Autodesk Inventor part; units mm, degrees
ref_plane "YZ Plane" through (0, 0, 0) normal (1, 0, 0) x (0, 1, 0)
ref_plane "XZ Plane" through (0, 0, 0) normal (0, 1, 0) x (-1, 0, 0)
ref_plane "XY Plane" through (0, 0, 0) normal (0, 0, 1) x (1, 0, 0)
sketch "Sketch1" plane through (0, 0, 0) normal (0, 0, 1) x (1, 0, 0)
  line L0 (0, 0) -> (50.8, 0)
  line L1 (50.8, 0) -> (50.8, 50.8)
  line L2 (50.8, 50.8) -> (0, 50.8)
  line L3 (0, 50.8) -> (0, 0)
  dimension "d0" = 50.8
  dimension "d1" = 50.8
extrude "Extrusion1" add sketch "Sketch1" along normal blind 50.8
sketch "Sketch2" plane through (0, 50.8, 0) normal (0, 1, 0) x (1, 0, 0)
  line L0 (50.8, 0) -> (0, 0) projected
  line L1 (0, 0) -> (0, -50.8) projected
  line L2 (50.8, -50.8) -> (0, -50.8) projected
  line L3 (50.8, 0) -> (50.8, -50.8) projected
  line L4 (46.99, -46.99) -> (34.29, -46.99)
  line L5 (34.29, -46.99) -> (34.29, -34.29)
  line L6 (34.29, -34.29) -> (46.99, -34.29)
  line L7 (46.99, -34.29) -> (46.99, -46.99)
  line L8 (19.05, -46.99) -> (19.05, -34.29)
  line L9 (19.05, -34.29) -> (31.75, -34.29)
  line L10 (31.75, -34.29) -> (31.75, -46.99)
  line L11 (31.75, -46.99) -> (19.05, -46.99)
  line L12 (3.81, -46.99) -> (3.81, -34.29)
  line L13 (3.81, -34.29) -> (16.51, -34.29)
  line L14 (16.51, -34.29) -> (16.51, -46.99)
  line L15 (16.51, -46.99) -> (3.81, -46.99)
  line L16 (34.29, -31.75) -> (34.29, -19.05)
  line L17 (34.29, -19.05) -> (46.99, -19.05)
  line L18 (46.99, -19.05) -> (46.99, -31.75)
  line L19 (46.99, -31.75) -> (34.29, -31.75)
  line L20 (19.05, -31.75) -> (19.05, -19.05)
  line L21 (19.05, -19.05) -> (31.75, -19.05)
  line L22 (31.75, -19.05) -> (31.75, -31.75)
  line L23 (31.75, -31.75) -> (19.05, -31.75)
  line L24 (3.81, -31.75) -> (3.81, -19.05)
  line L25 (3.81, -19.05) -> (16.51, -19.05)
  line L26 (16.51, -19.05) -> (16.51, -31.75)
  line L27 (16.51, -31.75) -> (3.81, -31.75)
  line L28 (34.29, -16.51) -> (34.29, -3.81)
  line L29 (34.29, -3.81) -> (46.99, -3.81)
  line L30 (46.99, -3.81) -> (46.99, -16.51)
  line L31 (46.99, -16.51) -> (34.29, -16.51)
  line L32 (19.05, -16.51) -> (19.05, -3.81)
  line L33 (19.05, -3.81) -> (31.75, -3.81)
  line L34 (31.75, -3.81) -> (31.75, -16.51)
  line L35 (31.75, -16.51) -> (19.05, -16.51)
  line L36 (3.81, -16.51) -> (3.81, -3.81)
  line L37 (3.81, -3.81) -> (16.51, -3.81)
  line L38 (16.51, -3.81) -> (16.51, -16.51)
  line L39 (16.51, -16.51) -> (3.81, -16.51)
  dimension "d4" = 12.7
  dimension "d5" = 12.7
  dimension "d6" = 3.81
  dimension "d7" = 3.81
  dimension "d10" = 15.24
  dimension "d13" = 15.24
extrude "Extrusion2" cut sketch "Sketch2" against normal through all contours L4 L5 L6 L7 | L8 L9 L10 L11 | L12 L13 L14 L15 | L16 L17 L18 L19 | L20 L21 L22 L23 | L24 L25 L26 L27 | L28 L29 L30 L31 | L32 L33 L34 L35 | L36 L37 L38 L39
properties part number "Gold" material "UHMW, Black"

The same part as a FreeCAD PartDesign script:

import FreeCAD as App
import Part
import Sketcher

V = App.Vector
Q = App.Units.Quantity


def add_polygon(sketch, points):
    """Adds a closed chain of lines whose ends are joined by coincident constraints."""
    first, n = sketch.GeometryCount, len(points)
    for a, b in zip(points, points[1:] + points[:1]):
        sketch.addGeometry(Part.LineSegment(App.Vector(*a, 0), App.Vector(*b, 0)), False)
    for i in range(n):
        sketch.addConstraint(Sketcher.Constraint("Coincident", first + i, 2, first + (i + 1) % n, 1))

doc = App.newDocument("Part")
params = doc.addObject("Spreadsheet::Sheet", "Params")
for row, (alias, value) in enumerate([
    ("sketch1_width", "2 in"),
    ("pad1_length", "2 in"),
    ("sketch2_width", "0.5 in"),
], start=1):
    params.set(f"A{row}", alias)
    params.set(f"B{row}", "=" + value)
    params.setAlias(f"B{row}", alias)

body = doc.addObject("PartDesign::Body", "Body")

sketch1 = body.newObject("Sketcher::SketchObject", "Sketch")
sketch1.AttachmentSupport = (doc.getObject("XY_Plane"), [""])
sketch1.MapMode = "FlatFace"
add_polygon(sketch1, [(0, 51), (0, 0), (51, 0), (51, 51)])
sketch1.addConstraint([
    Sketcher.Constraint("Vertical", 0),
    Sketcher.Constraint("Horizontal", 1),
    Sketcher.Constraint("Vertical", 2),
    Sketcher.Constraint("Horizontal", 3),
    Sketcher.Constraint("Coincident", 0, 2, -1, 1),
    Sketcher.Constraint("Equal", 3, 0),
    Sketcher.Constraint("DistanceX", 1, 1, 1, 2, Q("2 in")),
])
sketch1.setExpression("Constraints[10]", "Params.sketch1_width")
pad1 = body.newObject("PartDesign::Pad", "Pad")
pad1.Profile = sketch1
pad1.setExpression("Length", "Params.pad1_length")

sketch2 = body.newObject("Sketcher::SketchObject", "Sketch001")
sketch2.AttachmentSupport = (doc.getObject("XZ_Plane"), [""])
sketch2.MapMode = "FlatFace"
sketch2.AttachmentOffset = App.Placement(V(0, 0, -2 * 25.4), App.Rotation())
add_polygon(sketch2, [(34, 47), (47, 47), (47, 34), (34, 34)])
add_polygon(sketch2, [(19, 34), (19, 47), (32, 47), (32, 34)])
add_polygon(sketch2, [(4, 34), (4, 47), (17, 47), (17, 34)])
add_polygon(sketch2, [(34, 19), (34, 32), (47, 32), (47, 19)])
add_polygon(sketch2, [(19, 19), (19, 32), (32, 32), (32, 19)])
add_polygon(sketch2, [(4, 19), (4, 32), (17, 32), (17, 19)])
add_polygon(sketch2, [(34, 4), (34, 17), (47, 17), (47, 4)])
add_polygon(sketch2, [(19, 4), (19, 17), (32, 17), (32, 4)])
add_polygon(sketch2, [(4, 4), (4, 17), (17, 17), (17, 4)])
sketch2.addConstraint([
    Sketcher.Constraint("Horizontal", 0),
    Sketcher.Constraint("Vertical", 1),
    Sketcher.Constraint("Horizontal", 2),
    Sketcher.Constraint("Vertical", 3),
    Sketcher.Constraint("Vertical", 4),
    Sketcher.Constraint("Horizontal", 5),
    Sketcher.Constraint("Vertical", 6),
    Sketcher.Constraint("Horizontal", 7),
    Sketcher.Constraint("Vertical", 8),
    Sketcher.Constraint("Horizontal", 9),
    Sketcher.Constraint("Vertical", 10),
    Sketcher.Constraint("Horizontal", 11),
    Sketcher.Constraint("Vertical", 12),
    Sketcher.Constraint("Horizontal", 13),
    Sketcher.Constraint("Vertical", 14),
    Sketcher.Constraint("Horizontal", 15),
    Sketcher.Constraint("Vertical", 16),
    Sketcher.Constraint("Horizontal", 17),
    Sketcher.Constraint("Vertical", 18),
    Sketcher.Constraint("Horizontal", 19),
    Sketcher.Constraint("Vertical", 20),
    Sketcher.Constraint("Horizontal", 21),
    Sketcher.Constraint("Vertical", 22),
    Sketcher.Constraint("Horizontal", 23),
    Sketcher.Constraint("Vertical", 24),
    Sketcher.Constraint("Horizontal", 25),
    Sketcher.Constraint("Vertical", 26),
    Sketcher.Constraint("Horizontal", 27),
    Sketcher.Constraint("Vertical", 28),
    Sketcher.Constraint("Horizontal", 29),
    Sketcher.Constraint("Vertical", 30),
    Sketcher.Constraint("Horizontal", 31),
    Sketcher.Constraint("Vertical", 32),
    Sketcher.Constraint("Horizontal", 33),
    Sketcher.Constraint("Vertical", 34),
    Sketcher.Constraint("Horizontal", 35),
    Sketcher.Constraint("Horizontal", 3, 2, 4, 2),
    Sketcher.Constraint("Horizontal", 2, 2, 6, 2),
    Sketcher.Constraint("Horizontal", 5, 2, 8, 2),
    Sketcher.Constraint("Horizontal", 7, 2, 10, 2),
    Sketcher.Constraint("Horizontal", 13, 2, 16, 2),
    Sketcher.Constraint("Horizontal", 15, 2, 18, 2),
    Sketcher.Constraint("Horizontal", 17, 2, 20, 2),
    Sketcher.Constraint("Horizontal", 19, 2, 22, 2),
    Sketcher.Constraint("Horizontal", 25, 2, 28, 2),
    Sketcher.Constraint("Horizontal", 27, 2, 30, 2),
    Sketcher.Constraint("Horizontal", 29, 2, 32, 2),
    Sketcher.Constraint("Horizontal", 31, 2, 34, 2),
    Sketcher.Constraint("Vertical", 3, 2, 12, 2),
    Sketcher.Constraint("Vertical", 1, 2, 13, 2),
    Sketcher.Constraint("Vertical", 7, 2, 16, 2),
    Sketcher.Constraint("Vertical", 6, 2, 17, 2),
    Sketcher.Constraint("Vertical", 11, 2, 20, 2),
    Sketcher.Constraint("Vertical", 10, 2, 21, 2),
    Sketcher.Constraint("Vertical", 15, 2, 24, 2),
    Sketcher.Constraint("Vertical", 14, 2, 25, 2),
    Sketcher.Constraint("Vertical", 19, 2, 28, 2),
    Sketcher.Constraint("Vertical", 18, 2, 29, 2),
    Sketcher.Constraint("Vertical", 23, 2, 32, 2),
    Sketcher.Constraint("Vertical", 22, 2, 33, 2),
    Sketcher.Constraint("Equal", 2, 5),
    Sketcher.Constraint("Equal", 7, 9),
    Sketcher.Constraint("Equal", 35, 1),
    Sketcher.Constraint("Equal", 10, 12),
    Sketcher.Constraint("Equal", 22, 24),
    Sketcher.Constraint("DistanceX", 0, 1, 0, 2, Q("0.5 in")),
    Sketcher.Constraint("DistanceX", 4, 2, 3, 2, Q("0.6 in")),
    Sketcher.Constraint("DistanceX", 8, 2, 4, 2, Q("0.6 in")),
    Sketcher.Constraint("DistanceY", 12, 2, 3, 2, Q("0.6 in")),
    Sketcher.Constraint("DistanceY", 24, 2, 12, 2, Q("0.6 in")),
    Sketcher.Constraint("DistanceX", -1, 1, 8, 2, Q("0.15 in")),
    Sketcher.Constraint("DistanceY", -1, 1, 26, 2, Q("0.15 in")),
])
sketch2.setExpression("Constraints[101]", "Params.sketch2_width")
pocket1 = body.newObject("PartDesign::Pocket", "Pocket")
pocket1.Profile = sketch2
pocket1.Type = "ThroughAll"
pocket1.Reversed = True

doc.recompute()
